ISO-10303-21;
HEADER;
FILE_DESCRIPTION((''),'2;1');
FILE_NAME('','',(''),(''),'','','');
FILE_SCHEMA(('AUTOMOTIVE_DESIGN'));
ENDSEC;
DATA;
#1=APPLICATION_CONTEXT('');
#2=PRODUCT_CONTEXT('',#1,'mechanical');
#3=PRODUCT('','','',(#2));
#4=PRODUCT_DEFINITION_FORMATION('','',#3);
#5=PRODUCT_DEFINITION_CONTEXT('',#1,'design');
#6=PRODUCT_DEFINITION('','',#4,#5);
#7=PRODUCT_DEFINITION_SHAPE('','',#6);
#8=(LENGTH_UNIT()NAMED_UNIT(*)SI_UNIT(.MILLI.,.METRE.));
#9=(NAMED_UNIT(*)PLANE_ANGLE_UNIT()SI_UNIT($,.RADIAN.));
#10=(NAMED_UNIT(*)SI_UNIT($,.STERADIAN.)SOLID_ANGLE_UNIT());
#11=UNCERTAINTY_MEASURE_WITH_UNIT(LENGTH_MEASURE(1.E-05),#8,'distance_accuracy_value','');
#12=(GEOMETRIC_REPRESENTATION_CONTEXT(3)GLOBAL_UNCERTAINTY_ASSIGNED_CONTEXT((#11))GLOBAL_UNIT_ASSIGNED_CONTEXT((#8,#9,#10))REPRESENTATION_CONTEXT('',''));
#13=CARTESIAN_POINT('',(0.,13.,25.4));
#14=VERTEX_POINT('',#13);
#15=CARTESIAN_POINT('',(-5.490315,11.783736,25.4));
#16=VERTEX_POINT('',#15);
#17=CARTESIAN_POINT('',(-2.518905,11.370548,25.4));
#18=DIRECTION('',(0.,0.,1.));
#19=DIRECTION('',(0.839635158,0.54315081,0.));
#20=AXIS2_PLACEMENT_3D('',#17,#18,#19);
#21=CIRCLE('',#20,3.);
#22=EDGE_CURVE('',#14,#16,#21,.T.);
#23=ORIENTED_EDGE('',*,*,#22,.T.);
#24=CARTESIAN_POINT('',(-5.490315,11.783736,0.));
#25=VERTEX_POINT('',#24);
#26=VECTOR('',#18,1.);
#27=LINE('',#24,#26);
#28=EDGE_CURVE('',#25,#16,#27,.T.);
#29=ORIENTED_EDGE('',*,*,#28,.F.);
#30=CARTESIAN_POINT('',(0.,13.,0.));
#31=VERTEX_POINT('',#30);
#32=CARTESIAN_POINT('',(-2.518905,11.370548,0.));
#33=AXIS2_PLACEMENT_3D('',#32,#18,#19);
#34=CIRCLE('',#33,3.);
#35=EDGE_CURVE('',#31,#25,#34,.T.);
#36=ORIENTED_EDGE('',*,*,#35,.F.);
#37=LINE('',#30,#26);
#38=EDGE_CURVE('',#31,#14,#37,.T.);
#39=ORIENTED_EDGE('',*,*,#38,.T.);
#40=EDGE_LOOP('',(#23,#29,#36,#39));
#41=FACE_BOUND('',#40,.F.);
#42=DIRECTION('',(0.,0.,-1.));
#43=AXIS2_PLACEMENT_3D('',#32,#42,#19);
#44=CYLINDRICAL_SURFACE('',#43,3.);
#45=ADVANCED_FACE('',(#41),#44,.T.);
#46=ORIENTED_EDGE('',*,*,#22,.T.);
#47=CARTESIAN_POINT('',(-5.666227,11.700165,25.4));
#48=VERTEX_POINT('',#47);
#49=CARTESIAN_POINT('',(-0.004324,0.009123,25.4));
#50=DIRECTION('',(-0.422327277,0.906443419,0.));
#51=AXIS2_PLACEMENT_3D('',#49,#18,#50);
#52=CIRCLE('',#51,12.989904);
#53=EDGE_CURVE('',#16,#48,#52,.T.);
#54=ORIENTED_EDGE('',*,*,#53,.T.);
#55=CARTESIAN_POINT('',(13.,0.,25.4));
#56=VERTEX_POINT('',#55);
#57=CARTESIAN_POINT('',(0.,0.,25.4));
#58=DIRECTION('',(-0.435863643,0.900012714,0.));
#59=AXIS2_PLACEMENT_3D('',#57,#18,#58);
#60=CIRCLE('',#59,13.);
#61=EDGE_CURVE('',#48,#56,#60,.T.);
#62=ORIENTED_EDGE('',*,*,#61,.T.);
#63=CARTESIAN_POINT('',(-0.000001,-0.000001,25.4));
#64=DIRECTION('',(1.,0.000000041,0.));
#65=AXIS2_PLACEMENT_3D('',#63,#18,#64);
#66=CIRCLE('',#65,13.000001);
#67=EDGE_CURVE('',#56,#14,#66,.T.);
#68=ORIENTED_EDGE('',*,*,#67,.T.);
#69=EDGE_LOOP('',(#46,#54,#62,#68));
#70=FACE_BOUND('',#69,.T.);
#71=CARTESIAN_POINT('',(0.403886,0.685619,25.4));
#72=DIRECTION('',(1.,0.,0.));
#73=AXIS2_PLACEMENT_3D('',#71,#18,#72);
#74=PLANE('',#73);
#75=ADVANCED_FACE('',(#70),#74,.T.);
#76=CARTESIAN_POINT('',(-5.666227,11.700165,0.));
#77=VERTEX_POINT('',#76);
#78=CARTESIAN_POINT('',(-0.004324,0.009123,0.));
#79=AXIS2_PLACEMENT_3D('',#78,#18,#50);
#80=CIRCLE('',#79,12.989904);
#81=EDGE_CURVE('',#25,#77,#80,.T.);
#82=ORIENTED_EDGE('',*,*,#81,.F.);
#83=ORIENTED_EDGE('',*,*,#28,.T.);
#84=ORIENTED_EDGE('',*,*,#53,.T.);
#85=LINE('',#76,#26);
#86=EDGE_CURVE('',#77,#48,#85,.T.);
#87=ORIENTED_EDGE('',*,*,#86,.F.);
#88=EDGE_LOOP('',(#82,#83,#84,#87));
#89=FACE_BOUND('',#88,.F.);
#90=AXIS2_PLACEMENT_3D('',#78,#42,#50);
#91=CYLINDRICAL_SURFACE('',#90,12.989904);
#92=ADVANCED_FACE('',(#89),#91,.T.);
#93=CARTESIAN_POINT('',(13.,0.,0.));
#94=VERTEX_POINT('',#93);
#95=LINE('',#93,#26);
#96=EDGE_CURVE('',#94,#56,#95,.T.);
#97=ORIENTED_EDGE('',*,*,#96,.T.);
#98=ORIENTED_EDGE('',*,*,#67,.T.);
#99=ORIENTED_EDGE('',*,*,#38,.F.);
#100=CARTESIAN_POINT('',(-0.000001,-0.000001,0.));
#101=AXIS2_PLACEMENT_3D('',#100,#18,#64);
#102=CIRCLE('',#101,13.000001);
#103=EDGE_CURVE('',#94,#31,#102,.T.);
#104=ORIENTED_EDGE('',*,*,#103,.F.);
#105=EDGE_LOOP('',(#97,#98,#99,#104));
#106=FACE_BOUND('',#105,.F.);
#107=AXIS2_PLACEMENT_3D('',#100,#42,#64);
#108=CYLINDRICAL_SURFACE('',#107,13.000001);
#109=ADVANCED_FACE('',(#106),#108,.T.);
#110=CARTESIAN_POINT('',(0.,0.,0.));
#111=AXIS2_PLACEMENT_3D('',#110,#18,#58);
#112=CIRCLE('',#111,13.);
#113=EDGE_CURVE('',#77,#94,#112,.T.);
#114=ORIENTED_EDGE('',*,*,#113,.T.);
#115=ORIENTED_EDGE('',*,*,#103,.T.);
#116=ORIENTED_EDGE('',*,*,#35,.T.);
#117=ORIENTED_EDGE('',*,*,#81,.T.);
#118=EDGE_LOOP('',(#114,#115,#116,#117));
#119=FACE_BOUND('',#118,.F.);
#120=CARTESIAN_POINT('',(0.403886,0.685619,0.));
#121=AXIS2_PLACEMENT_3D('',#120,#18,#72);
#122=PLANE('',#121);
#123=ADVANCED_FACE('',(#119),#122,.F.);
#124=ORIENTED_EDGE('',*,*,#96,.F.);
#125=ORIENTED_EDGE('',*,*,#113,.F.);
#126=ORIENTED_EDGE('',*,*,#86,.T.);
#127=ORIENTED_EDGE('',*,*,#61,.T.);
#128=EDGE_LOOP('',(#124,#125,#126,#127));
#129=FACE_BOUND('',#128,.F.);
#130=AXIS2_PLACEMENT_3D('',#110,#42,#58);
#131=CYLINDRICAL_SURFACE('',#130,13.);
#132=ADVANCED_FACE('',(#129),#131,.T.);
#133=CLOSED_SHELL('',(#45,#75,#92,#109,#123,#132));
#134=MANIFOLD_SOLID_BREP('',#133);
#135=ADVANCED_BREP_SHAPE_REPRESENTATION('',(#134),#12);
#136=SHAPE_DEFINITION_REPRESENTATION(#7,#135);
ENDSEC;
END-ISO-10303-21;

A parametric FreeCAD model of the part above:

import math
import FreeCAD as App
import Part
import Sketcher
from FreeCAD import Vector
Q = App.Units.Quantity

doc = App.newDocument("Part")
body = doc.addObject("PartDesign::Body", "Body")

# Sketch on XY plane
sketch1 = body.newObject("Sketcher::SketchObject", "Sketch")
sketch1.AttachmentSupport = (doc.getObject("XY_Plane"), [""])
sketch1.MapMode = "FlatFace"
sketch1.addGeometry([
    Part.ArcOfCircle(Part.Circle(Vector(0, 0, 0), Vector(0, 0, 1), 13), math.radians(115.840262), math.radians(360)),
    Part.ArcOfCircle(Part.Circle(Vector(-0.000001, -0.000001, 0), Vector(0, 0, 1), 13.000001), math.radians(0.000002), math.radians(89.999998)),
    Part.ArcOfCircle(Part.Circle(Vector(-2.518905, 11.370548, 0), Vector(0, 0, 1), 3), math.radians(32.898387), math.radians(172.083519)),
    Part.ArcOfCircle(Part.Circle(Vector(-0.004324, 0.009123, 0), Vector(0, 0, 1), 12.989904), math.radians(114.981606), math.radians(115.840634)),
], False)
sketch1.addConstraint([
    Sketcher.Constraint("Tangent", 0, 2, 1, 1),
    Sketcher.Constraint("Coincident", 1, 2, 2, 1),
    Sketcher.Constraint("Coincident", 2, 2, 3, 1),
    Sketcher.Constraint("Coincident", 3, 2, 0, 1),
    Sketcher.Constraint("Coincident", 0, 3, -1, 1),
    Sketcher.Constraint("Equal", 0, 1),
    Sketcher.Constraint("PointOnObject", 0, 2, -1),
    Sketcher.Constraint("PointOnObject", 1, 2, -2),
    Sketcher.Constraint("Radius", 0, Q("13 mm")),
    Sketcher.Constraint("Radius", 2, Q("3 mm")),
    Sketcher.Constraint("Radius", 3, Q("12.989904 mm")),
    Sketcher.Constraint("DistanceY", 1, 3, 2, 3, Q("11.370548 mm")),
    Sketcher.Constraint("DistanceX", 2, 3, 3, 3, Q("2.514581 mm")),
    Sketcher.Constraint("DistanceX", 3, 2, 2, 2, Q("0.175912 mm")),
])
pad1 = body.newObject("PartDesign::Pad", "Pad")
pad1.Profile = sketch1
pad1.Length = 25.4

doc.recompute()
